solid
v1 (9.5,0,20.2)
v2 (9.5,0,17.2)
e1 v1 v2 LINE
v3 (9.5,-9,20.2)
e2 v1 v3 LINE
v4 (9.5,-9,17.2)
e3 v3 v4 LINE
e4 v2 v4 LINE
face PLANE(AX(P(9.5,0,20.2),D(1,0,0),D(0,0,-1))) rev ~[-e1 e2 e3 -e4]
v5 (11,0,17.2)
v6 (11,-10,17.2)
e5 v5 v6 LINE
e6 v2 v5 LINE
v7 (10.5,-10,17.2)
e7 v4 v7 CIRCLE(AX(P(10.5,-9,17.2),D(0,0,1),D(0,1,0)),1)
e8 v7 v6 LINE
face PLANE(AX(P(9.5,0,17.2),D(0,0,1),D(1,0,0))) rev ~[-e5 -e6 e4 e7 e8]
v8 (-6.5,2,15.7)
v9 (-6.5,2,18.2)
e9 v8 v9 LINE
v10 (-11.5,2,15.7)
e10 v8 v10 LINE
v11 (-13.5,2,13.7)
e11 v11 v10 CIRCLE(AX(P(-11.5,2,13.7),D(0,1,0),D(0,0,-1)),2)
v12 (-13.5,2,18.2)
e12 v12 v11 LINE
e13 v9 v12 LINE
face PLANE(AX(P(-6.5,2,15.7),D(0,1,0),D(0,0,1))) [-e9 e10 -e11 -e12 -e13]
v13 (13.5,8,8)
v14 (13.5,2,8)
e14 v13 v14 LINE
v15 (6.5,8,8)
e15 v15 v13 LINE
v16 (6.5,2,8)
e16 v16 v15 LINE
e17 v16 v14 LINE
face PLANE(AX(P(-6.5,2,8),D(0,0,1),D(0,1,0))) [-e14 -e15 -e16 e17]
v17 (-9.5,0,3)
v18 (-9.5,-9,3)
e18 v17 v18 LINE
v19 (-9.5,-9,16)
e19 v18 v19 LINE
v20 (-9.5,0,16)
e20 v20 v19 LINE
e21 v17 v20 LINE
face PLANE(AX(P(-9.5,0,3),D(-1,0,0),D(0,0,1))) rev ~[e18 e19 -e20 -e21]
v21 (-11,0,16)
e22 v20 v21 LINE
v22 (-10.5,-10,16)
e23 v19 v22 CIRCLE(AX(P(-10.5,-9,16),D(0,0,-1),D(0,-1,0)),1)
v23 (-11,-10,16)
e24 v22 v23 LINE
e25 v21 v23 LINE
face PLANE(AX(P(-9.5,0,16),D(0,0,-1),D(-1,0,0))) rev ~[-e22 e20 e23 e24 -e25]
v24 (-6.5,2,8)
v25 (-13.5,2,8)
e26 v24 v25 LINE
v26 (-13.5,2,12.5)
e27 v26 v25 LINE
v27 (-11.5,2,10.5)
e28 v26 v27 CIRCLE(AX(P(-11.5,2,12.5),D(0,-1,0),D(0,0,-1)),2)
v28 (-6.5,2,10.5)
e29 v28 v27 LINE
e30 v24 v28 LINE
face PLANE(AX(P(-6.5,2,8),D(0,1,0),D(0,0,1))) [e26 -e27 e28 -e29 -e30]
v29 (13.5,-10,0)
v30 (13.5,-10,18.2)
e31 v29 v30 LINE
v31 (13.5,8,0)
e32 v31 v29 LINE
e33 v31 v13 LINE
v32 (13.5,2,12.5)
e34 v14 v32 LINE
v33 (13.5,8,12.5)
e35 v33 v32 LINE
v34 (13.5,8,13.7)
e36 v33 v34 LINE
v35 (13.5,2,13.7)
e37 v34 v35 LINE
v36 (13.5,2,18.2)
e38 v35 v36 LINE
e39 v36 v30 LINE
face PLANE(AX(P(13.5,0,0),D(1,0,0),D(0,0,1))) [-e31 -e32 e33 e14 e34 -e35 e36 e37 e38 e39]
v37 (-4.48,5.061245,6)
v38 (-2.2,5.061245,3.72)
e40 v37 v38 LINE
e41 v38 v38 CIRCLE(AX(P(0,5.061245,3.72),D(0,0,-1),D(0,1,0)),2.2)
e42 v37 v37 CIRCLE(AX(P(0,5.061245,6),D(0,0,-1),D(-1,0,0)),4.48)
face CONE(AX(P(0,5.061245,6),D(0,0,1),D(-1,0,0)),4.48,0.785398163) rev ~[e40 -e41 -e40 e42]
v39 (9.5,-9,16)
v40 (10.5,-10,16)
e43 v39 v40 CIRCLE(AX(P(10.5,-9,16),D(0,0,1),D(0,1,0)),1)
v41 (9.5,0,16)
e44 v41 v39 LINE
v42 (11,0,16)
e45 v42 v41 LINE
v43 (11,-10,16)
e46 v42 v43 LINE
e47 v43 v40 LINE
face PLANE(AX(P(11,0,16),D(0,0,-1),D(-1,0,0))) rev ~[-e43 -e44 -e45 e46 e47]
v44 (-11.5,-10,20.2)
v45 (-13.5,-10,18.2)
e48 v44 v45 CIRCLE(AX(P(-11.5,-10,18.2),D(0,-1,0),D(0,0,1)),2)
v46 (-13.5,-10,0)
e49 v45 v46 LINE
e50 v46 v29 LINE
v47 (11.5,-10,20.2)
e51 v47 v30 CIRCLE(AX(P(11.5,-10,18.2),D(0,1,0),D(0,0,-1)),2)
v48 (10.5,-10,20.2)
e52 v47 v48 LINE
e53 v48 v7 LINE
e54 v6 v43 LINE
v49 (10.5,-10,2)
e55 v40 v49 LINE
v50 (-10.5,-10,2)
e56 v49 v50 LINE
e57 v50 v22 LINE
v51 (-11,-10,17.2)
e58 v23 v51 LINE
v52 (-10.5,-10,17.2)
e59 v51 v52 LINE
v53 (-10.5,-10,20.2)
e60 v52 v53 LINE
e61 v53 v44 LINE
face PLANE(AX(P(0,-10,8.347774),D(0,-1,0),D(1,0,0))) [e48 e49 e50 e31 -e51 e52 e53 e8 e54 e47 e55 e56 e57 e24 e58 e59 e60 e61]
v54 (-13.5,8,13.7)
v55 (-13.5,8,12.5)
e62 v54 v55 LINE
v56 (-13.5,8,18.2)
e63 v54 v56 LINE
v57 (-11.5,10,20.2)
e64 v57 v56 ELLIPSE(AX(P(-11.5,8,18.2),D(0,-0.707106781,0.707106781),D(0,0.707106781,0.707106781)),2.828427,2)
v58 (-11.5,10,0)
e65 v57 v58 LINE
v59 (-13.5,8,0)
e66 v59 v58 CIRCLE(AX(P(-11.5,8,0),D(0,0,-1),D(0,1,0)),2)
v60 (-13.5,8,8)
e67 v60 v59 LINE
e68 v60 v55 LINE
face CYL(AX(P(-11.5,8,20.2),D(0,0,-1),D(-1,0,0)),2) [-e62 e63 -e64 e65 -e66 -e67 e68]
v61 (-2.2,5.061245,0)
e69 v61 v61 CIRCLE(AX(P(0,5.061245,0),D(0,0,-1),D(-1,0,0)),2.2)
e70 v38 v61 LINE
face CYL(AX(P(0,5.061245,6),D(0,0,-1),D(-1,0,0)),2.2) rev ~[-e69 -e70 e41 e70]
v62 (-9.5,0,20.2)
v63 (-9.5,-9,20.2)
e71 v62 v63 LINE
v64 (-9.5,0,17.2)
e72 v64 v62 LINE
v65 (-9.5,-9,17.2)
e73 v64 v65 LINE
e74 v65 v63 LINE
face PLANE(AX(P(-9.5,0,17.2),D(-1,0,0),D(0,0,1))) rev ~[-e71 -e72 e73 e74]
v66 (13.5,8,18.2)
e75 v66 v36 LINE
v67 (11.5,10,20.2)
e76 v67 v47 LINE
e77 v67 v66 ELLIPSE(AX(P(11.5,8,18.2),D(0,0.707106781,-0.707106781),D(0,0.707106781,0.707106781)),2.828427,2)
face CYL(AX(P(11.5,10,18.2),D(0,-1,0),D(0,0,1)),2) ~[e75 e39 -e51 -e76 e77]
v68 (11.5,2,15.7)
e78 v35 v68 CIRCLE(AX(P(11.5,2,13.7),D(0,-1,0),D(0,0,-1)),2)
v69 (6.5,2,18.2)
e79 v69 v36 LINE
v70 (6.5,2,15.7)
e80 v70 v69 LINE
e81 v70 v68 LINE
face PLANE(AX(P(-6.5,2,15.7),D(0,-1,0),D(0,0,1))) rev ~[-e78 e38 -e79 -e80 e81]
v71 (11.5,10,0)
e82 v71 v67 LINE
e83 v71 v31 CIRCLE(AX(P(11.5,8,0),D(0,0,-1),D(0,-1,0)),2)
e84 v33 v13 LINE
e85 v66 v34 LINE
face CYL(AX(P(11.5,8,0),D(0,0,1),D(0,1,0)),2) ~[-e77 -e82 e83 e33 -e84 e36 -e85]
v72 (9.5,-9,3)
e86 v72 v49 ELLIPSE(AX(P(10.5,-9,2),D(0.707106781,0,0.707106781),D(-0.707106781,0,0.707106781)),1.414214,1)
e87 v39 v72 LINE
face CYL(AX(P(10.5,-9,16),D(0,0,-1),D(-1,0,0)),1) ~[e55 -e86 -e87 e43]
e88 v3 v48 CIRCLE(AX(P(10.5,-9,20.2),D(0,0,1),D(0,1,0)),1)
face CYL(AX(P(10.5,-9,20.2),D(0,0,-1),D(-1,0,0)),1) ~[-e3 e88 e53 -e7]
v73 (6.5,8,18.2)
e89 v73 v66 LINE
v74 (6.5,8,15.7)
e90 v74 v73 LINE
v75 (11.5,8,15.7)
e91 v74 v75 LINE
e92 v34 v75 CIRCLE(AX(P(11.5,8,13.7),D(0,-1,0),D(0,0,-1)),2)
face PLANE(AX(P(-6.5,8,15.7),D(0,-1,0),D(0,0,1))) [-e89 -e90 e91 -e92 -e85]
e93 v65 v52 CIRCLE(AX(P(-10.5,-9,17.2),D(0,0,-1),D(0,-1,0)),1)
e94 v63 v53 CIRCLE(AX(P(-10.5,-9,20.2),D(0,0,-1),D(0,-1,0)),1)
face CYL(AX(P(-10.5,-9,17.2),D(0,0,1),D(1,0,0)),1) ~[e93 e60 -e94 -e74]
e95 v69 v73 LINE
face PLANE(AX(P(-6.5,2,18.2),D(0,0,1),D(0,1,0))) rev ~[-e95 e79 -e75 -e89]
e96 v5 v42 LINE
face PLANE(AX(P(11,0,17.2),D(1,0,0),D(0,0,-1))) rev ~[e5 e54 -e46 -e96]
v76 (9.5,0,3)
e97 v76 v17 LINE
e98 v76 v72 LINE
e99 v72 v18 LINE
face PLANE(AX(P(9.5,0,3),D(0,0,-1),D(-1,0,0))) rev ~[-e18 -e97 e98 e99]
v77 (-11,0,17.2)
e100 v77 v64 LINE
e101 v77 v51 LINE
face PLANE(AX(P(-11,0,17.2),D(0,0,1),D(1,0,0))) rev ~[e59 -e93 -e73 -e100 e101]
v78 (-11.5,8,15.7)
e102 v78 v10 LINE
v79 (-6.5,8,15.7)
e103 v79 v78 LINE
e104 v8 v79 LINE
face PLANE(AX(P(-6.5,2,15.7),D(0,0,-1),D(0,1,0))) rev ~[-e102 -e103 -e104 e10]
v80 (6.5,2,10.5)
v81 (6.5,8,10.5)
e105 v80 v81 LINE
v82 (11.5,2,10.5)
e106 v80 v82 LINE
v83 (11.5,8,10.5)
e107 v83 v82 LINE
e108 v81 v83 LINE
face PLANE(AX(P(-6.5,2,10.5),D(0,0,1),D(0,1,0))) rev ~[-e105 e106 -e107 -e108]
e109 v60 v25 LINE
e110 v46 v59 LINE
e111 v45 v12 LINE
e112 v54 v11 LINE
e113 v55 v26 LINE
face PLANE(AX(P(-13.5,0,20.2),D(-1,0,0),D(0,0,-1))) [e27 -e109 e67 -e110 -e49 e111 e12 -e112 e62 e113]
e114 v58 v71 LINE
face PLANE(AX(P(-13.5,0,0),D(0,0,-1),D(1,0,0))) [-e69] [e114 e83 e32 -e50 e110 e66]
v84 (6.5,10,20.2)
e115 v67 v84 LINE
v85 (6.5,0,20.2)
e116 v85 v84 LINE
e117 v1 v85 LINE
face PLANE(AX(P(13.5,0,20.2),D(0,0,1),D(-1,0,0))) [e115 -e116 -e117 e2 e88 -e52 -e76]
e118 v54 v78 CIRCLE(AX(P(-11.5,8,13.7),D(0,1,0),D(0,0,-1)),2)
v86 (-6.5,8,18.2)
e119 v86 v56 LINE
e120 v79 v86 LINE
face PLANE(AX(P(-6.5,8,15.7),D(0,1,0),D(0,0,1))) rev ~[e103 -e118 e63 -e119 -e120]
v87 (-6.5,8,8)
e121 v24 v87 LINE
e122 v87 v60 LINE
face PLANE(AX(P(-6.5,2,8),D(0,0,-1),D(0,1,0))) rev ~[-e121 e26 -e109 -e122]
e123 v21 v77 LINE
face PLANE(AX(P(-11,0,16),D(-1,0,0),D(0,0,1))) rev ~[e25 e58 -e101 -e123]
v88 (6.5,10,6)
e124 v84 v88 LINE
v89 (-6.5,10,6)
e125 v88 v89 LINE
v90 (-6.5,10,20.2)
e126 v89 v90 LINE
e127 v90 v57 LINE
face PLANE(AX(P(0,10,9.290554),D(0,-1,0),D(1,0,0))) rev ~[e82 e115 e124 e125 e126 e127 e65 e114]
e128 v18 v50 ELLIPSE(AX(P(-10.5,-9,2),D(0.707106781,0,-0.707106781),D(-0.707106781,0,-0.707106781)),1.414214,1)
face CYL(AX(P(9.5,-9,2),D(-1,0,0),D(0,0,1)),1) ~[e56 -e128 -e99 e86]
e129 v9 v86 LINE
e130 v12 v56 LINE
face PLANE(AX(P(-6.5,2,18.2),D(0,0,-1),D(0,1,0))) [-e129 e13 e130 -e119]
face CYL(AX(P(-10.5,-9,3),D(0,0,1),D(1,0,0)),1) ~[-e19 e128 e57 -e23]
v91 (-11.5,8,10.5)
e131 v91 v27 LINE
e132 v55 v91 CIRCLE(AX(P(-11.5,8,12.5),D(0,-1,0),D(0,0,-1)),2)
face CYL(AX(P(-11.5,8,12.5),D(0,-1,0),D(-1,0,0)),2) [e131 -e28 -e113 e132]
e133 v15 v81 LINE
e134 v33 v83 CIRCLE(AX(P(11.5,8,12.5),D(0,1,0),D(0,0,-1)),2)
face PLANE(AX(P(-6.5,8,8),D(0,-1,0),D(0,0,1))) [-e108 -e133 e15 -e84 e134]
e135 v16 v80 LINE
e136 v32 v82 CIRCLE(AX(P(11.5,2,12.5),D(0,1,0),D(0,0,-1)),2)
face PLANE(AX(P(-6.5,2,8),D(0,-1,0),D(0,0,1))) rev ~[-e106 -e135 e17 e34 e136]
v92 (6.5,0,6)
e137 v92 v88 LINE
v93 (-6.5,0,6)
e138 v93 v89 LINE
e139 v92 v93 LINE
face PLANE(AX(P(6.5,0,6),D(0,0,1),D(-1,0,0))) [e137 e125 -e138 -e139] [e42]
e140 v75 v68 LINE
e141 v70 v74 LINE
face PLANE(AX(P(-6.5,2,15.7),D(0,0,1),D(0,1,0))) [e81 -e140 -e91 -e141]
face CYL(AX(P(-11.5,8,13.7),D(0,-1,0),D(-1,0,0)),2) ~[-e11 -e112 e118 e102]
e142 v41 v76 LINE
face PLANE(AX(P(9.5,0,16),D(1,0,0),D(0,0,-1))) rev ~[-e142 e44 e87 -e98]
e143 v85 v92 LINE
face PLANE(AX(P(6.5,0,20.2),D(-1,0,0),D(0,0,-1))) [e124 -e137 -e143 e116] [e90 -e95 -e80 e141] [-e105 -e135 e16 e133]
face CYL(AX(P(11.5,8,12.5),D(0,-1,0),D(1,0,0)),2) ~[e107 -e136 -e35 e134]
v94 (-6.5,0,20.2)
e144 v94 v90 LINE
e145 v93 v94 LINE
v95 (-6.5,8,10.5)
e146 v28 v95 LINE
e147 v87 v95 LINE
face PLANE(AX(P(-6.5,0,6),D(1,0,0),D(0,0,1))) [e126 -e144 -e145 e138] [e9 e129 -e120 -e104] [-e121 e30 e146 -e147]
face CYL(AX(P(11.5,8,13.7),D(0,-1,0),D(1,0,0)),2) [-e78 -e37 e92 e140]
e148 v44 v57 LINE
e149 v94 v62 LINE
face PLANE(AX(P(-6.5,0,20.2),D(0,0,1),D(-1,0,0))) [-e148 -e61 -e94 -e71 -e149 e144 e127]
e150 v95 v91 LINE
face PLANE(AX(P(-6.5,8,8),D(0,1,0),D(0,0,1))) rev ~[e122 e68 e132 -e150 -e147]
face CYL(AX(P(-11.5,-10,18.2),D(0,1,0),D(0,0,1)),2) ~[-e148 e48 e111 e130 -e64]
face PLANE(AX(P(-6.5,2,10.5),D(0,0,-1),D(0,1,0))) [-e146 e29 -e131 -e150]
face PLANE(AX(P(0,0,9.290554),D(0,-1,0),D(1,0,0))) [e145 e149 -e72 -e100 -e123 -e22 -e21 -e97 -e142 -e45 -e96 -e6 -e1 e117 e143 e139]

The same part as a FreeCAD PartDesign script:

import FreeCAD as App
import Part
import Sketcher

V = App.Vector
Q = App.Units.Quantity


def edges_at(feature, points):
    """Names of the edges that pass closest to the given points."""
    edges = feature.Shape.Edges
    near = lambda p: min(range(len(edges)), key=lambda i: edges[i].distToShape(Part.Vertex(*p))[0])
    return sorted({f"Edge{near(p) + 1}" for p in points})


def add_polygon(sketch, points):
    """Adds a closed chain of lines whose ends are joined by coincident constraints."""
    first, n = sketch.GeometryCount, len(points)
    for a, b in zip(points, points[1:] + points[:1]):
        sketch.addGeometry(Part.LineSegment(App.Vector(*a, 0), App.Vector(*b, 0)), False)
    for i in range(n):
        sketch.addConstraint(Sketcher.Constraint("Coincident", first + i, 2, first + (i + 1) % n, 1))

doc = App.newDocument("Part")
body = doc.addObject("PartDesign::Body", "Body")

# Sketch on XZ plane
sketch1 = doc.addObject("Sketcher::SketchObject", "Sketch")
body.addObject(sketch1)
sketch1.AttachmentSupport = (doc.XZ_Plane, [""])
sketch1.MapMode = "FlatFace"
add_polygon(sketch1, [(-13.5, 20.2), (-13.5, 0), (13.5, 0), (13.5, 20.2), (9.5, 20.2), (9.5, 17.2), (11, 17.2), (11, 16), (9.5, 16), (9.5, 3), (-9.5, 3), (-9.5, 16), (-11, 16), (-11, 17.2), (-9.5, 17.2), (-9.5, 20.2)])  # lines 0-15
sketch1.addConstraint([
    Sketcher.Constraint("Vertical", 0),
    Sketcher.Constraint("Horizontal", 1),
    Sketcher.Constraint("Vertical", 2),
    Sketcher.Constraint("Horizontal", 3),
    Sketcher.Constraint("Vertical", 4),
    Sketcher.Constraint("Horizontal", 5),
    Sketcher.Constraint("Vertical", 6),
    Sketcher.Constraint("Horizontal", 7),
    Sketcher.Constraint("Vertical", 8),
    Sketcher.Constraint("Horizontal", 9),
    Sketcher.Constraint("Vertical", 10),
    Sketcher.Constraint("Horizontal", 11),
    Sketcher.Constraint("Vertical", 12),
    Sketcher.Constraint("Horizontal", 13),
    Sketcher.Constraint("Vertical", 14),
    Sketcher.Constraint("Horizontal", 15),
    Sketcher.Constraint("Symmetric", 0, 2, 1, 2, -1, 1),
    Sketcher.Constraint("Symmetric", 7, 2, 10, 2, -2),
    Sketcher.Constraint("Symmetric", 5, 2, 12, 2, -2),
    Sketcher.Constraint("Symmetric", 3, 2, 14, 2, -2),
    Sketcher.Constraint("Vertical", 4, 2, 7, 2),
    Sketcher.Constraint("DistanceX", 1, 1, 1, 2, Q("27 mm")),
    Sketcher.Constraint("DistanceX", 3, 2, 3, 1, Q("4 mm")),
    Sketcher.Constraint("DistanceY", 4, 2, 4, 1, Q("3 mm")),
    Sketcher.Constraint("DistanceY", 8, 2, 8, 1, Q("13 mm")),
    Sketcher.Constraint("DistanceX", 5, 1, 5, 2, Q("1.5 mm")),
    Sketcher.Constraint("DistanceY", 0, 2, 0, 1, Q("20.2 mm")),
    Sketcher.Constraint("DistanceY", 6, 2, 6, 1, Q("1.2 mm")),
])
pad1 = doc.addObject("PartDesign::Pad", "Pad")
body.addObject(pad1)
pad1.Profile = sketch1
pad1.Length = 10

# Sketch on XZ plane
sketch2 = doc.addObject("Sketcher::SketchObject", "Sketch001")
body.addObject(sketch2)
sketch2.AttachmentSupport = (doc.XZ_Plane, [""])
sketch2.MapMode = "FlatFace"
add_polygon(sketch2, [(-13.5, 0), (13.5, 0), (13.5, 20.2), (6.5, 20.2), (6.5, 6), (-6.5, 6), (-6.5, 20.2), (-13.5, 20.2)])  # lines 0-7
sketch2.addConstraint([
    Sketcher.Constraint("Horizontal", 0),
    Sketcher.Constraint("Vertical", 1),
    Sketcher.Constraint("Horizontal", 2),
    Sketcher.Constraint("Vertical", 3),
    Sketcher.Constraint("Horizontal", 4),
    Sketcher.Constraint("Vertical", 5),
    Sketcher.Constraint("Horizontal", 6),
    Sketcher.Constraint("Vertical", 7),
    Sketcher.Constraint("Symmetric", 0, 2, 7, 2, -1, 1),
    Sketcher.Constraint("Symmetric", 2, 2, 5, 2, -2),
    Sketcher.Constraint("DistanceX", 0, 1, 0, 2, Q("27 mm")),
    Sketcher.Constraint("DistanceX", 2, 2, 2, 1, Q("7 mm")),
    Sketcher.Constraint("DistanceY", 1, 1, 1, 2, Q("20.2 mm")),
    Sketcher.Constraint("DistanceY", 3, 2, 3, 1, Q("14.2 mm")),
])
pad2 = doc.addObject("PartDesign::Pad", "Pad001")
body.addObject(pad2)
pad2.Profile = sketch2
pad2.Length = 10
pad2.Reversed = True

# Sketch on XY plane
sketch3 = doc.addObject("Sketcher::SketchObject", "Sketch002")
body.addObject(sketch3)
sketch3.AttachmentSupport = (doc.XY_Plane, [""])
sketch3.MapMode = "FlatFace"
sketch3.AttachmentOffset = App.Placement(V(0, 0, 6), App.Rotation())
sketch3.addGeometry(Part.Circle(V(0, 5.061245, 0), V(0, 0, 1), 2.2), False)
sketch3.addConstraint([
    Sketcher.Constraint("PointOnObject", 0, 3, -2),
    Sketcher.Constraint("Diameter", 0, Q("4.4 mm")),
    Sketcher.Constraint("DistanceY", -1, 1, 0, 3, Q("5.061245 mm")),
])
doc.recompute()
hole = doc.addObject("PartDesign::Hole", "Hole")
body.addObject(hole)
hole.Profile = sketch3
hole.ThreadType = "None"
hole.Diameter = 4.4
hole.DepthType = "ThroughAll"
hole.HoleCutType = "Countersink"
hole.HoleCutDiameter = 8.96
hole.HoleCutCountersinkAngle = 90
doc.recompute()

fillet = doc.addObject("PartDesign::Fillet", "Fillet")
body.addObject(fillet)
fillet.Base = (hole, edges_at(hole, [
    (0, -10, 3),
    (-9.5, -10, 9.5),
    (-9.5, -10, 18.7),
    (9.5, -10, 18.7),
    (9.5, -10, 9.5),
]))
fillet.Radius = 1
doc.recompute()

fillet2 = doc.addObject("PartDesign::Fillet", "Fillet001")
body.addObject(fillet2)
fillet2.Base = (fillet, edges_at(fillet, [
    (-13.5, 0, 20.2),
    (-13.5, 10, 10.1),
    (13.5, 10, 10.1),
    (13.5, 0, 20.2),
]))
fillet2.Radius = 2

# Sketch on YZ plane
sketch4 = doc.addObject("Sketcher::SketchObject", "Sketch003")
body.addObject(sketch4)
sketch4.AttachmentSupport = (doc.YZ_Plane, [""])
sketch4.MapMode = "FlatFace"
sketch4.AttachmentOffset = App.Placement(V(0, 0, -6.5), App.Rotation())
add_polygon(sketch4, [(2, 18.2), (2, 15.7), (8, 15.7), (8, 18.2)])  # lines 0-3
add_polygon(sketch4, [(2, 10.5), (2, 8), (8, 8), (8, 10.5)])  # lines 4-7
sketch4.addConstraint([
    Sketcher.Constraint("Vertical", 0),
    Sketcher.Constraint("Horizontal", 1),
    Sketcher.Constraint("Vertical", 2),
    Sketcher.Constraint("Horizontal", 3),
    Sketcher.Constraint("Vertical", 4),
    Sketcher.Constraint("Horizontal", 5),
    Sketcher.Constraint("Vertical", 6),
    Sketcher.Constraint("Horizontal", 7),
    Sketcher.Constraint("Vertical", 3, 2, 4, 2),
    Sketcher.Constraint("Vertical", 2, 2, 5, 2),
    Sketcher.Constraint("Equal", 2, 4),
    Sketcher.Constraint("DistanceX", 1, 1, 1, 2, Q("6 mm")),
    Sketcher.Constraint("DistanceY", 0, 2, 0, 1, Q("2.5 mm")),
    Sketcher.Constraint("DistanceX", -1, 1, 0, 2, Q("2 mm")),
    Sketcher.Constraint("DistanceY", -1, 1, 4, 2, Q("8 mm")),
    Sketcher.Constraint("DistanceY", -1, 1, 0, 2, Q("15.7 mm")),
])
pocket1 = doc.addObject("PartDesign::Pocket", "Pocket")
body.addObject(pocket1)
pocket1.Profile = sketch4
pocket1.Type = "ThroughAll"
pocket1.Midplane = True
doc.recompute()

fillet3 = doc.addObject("PartDesign::Fillet", "Fillet002")
body.addObject(fillet3)
fillet3.Base = (pocket1, edges_at(pocket1, [
    (-13.5, 5, 15.7),
    (-13.5, 5, 10.5),
    (13.5, 5, 15.7),
    (13.5, 5, 10.5),
]))
fillet3.Radius = 2

doc.recompute()
